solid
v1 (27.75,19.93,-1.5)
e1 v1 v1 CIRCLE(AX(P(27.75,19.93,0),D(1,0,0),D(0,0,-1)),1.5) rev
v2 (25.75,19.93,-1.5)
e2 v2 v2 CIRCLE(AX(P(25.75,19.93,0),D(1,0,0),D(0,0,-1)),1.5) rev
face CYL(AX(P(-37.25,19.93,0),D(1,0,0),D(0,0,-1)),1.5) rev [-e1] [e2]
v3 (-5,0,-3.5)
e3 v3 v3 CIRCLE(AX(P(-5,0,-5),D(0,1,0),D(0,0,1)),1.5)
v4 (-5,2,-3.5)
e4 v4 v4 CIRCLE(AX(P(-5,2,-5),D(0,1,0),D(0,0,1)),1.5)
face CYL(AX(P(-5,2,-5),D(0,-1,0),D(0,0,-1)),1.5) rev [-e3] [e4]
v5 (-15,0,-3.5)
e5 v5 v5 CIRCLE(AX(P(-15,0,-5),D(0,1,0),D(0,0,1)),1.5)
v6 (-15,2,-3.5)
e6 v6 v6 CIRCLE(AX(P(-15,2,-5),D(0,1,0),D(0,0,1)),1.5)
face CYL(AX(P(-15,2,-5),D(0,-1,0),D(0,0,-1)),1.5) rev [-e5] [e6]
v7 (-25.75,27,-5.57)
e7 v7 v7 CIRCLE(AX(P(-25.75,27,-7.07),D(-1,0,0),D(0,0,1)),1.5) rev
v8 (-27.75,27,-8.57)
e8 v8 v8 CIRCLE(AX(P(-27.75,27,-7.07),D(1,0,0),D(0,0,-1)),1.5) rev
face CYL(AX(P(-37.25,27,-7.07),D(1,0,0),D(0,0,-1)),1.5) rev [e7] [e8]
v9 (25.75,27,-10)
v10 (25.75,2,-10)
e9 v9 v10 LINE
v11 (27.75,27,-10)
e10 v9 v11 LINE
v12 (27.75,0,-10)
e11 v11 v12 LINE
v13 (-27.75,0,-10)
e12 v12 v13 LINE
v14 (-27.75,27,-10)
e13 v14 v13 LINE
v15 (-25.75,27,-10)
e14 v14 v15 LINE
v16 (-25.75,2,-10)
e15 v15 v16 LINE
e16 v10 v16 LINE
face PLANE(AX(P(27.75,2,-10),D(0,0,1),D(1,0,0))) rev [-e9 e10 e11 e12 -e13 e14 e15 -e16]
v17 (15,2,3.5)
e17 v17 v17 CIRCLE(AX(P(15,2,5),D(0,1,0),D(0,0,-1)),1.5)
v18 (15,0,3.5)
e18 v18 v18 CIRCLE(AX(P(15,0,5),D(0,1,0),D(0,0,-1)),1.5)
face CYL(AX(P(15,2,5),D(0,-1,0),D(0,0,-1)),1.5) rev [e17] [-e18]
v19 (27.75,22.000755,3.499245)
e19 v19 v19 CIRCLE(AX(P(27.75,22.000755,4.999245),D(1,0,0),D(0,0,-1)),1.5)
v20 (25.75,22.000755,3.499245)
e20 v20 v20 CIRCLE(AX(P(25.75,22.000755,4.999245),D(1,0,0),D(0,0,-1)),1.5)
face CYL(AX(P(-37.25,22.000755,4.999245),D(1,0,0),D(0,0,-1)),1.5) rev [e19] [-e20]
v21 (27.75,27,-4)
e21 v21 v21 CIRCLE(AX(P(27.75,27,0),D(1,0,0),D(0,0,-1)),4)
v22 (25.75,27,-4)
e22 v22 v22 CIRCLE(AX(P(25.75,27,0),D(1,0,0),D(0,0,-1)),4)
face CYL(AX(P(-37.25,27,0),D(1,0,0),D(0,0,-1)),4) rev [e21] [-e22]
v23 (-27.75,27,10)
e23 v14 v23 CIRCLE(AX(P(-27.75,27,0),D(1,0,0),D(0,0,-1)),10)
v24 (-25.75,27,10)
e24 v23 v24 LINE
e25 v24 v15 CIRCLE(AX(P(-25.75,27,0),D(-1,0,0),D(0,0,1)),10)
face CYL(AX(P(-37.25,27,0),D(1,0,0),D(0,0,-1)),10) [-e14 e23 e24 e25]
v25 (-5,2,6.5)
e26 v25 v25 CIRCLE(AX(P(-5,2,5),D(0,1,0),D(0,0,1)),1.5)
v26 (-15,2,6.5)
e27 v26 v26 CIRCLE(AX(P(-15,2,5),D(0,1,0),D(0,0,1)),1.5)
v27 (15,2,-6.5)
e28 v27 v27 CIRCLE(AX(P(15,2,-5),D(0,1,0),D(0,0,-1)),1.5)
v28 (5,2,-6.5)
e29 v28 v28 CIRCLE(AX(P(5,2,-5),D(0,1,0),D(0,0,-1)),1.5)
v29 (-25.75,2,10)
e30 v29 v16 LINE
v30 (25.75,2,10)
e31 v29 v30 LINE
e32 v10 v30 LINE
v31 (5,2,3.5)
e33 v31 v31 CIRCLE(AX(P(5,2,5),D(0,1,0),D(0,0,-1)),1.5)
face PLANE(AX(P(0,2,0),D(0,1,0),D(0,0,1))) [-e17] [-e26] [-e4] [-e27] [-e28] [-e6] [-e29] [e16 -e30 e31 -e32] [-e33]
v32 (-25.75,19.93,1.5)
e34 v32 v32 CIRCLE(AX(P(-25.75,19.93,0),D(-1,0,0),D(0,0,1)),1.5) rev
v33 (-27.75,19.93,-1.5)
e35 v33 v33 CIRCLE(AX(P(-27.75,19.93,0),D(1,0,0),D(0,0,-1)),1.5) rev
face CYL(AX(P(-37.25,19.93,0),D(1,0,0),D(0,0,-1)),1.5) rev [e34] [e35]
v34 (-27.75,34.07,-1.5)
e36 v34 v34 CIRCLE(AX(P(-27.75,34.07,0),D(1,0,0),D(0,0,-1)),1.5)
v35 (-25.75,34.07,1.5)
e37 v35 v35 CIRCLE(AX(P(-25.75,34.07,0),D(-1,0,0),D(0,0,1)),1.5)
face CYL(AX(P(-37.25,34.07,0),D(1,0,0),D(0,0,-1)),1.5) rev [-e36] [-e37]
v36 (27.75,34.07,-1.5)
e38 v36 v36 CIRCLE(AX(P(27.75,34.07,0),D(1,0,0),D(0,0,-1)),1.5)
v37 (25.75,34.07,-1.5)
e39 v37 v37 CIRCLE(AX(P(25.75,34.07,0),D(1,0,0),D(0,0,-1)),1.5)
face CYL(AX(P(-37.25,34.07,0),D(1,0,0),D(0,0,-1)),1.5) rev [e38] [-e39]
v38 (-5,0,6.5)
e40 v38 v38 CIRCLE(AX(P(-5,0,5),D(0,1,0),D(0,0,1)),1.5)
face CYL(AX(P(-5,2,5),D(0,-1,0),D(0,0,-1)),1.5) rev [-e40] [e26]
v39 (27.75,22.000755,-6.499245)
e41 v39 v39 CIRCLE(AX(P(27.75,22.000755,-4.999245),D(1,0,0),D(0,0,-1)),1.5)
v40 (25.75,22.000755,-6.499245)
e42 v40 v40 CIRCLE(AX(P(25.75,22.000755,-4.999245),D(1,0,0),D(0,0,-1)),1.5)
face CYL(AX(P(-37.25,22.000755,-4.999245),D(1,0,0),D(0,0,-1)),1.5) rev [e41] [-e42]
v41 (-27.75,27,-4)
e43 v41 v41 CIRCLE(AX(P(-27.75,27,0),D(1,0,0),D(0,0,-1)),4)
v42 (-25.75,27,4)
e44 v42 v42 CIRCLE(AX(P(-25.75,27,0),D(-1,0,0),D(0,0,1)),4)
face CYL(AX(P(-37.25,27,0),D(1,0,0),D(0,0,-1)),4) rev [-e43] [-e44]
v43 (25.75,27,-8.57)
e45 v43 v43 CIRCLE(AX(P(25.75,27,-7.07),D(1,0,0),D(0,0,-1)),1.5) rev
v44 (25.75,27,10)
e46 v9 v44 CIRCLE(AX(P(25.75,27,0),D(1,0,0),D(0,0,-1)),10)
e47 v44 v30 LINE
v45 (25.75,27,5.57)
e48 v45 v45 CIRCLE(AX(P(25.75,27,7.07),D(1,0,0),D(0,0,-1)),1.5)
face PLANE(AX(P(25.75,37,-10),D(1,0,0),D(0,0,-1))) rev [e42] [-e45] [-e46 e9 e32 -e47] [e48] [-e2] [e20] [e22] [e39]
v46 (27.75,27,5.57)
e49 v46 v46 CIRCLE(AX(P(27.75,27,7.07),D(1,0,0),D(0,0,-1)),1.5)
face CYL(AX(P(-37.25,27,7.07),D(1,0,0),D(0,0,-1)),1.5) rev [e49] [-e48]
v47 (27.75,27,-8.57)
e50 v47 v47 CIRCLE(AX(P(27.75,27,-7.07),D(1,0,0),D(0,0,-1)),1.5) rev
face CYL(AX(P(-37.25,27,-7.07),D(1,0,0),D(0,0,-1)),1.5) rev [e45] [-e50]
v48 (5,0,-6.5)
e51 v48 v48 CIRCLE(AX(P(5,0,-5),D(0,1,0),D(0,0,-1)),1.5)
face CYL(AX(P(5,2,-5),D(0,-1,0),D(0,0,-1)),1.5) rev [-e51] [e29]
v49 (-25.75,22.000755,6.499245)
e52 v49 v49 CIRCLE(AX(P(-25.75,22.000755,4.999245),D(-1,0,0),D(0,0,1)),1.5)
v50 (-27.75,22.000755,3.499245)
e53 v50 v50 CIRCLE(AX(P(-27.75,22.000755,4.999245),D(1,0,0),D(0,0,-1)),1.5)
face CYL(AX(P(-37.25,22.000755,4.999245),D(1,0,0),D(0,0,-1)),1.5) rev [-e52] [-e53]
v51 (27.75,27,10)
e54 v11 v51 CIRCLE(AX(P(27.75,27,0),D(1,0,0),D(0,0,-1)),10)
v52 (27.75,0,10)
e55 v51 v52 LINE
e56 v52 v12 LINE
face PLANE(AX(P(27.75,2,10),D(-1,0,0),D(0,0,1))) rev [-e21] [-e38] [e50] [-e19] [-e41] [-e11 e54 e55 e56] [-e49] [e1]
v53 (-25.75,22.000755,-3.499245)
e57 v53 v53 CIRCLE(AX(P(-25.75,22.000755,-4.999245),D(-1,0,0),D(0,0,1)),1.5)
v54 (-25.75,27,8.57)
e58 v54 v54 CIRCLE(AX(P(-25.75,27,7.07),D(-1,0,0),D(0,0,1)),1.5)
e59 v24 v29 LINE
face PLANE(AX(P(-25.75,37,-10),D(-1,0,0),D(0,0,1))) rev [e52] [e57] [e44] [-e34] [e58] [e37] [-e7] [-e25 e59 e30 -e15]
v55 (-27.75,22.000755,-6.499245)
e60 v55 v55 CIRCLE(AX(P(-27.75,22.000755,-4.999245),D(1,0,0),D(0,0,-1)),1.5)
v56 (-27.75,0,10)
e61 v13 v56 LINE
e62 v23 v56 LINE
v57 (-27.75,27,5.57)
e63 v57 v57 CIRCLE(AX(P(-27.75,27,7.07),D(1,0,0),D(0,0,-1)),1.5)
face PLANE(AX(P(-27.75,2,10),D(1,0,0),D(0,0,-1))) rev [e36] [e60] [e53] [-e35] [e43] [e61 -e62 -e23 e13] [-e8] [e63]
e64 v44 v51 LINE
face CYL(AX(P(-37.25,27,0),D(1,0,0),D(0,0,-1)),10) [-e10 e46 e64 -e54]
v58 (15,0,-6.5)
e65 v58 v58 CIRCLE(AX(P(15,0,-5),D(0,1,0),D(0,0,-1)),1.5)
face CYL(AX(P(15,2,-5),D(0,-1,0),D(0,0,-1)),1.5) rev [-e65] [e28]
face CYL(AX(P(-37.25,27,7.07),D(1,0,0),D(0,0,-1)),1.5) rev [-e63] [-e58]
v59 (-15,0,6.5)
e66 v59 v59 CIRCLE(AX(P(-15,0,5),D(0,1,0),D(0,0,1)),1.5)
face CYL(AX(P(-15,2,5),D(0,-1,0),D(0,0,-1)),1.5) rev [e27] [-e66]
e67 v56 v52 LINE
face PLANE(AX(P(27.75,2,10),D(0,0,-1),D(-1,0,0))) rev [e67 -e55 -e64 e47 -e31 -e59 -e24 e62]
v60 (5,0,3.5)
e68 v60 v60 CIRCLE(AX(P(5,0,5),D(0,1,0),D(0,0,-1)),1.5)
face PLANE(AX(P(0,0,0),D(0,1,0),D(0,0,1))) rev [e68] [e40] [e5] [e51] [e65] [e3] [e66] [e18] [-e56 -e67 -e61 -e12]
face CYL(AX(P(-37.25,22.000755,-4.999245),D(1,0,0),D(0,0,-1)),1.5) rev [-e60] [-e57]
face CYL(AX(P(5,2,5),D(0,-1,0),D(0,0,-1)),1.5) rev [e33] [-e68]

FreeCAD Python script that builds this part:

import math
import FreeCAD as App
import Part
import Sketcher
Q = App.Units.Quantity


def add_polygon(sketch, points):
    """Adds a closed chain of lines whose ends are joined by coincident constraints."""
    first, n = sketch.GeometryCount, len(points)
    for a, b in zip(points, points[1:] + points[:1]):
        sketch.addGeometry(Part.LineSegment(App.Vector(*a, 0), App.Vector(*b, 0)), False)
    for i in range(n):
        sketch.addConstraint(Sketcher.Constraint("Coincident", first + i, 2, first + (i + 1) % n, 1))

doc = App.newDocument("Part")
body = doc.addObject("PartDesign::Body", "Body")

# Sketch on XZ plane
sketch1 = body.newObject("Sketcher::SketchObject", "Sketch")
sketch1.AttachmentSupport = (doc.getObject("XZ_Plane"), [""])
sketch1.MapMode = "FlatFace"
add_polygon(sketch1, [(-27.8, -10), (-27.8, 10), (27.8, 10), (27.8, -10)])  # lines 0-3
sketch1.addGeometry(Part.Circle(App.Vector(-15, 5, 0), App.Vector(0, 0, 1), 1.5), False)  # 4
sketch1.addGeometry(Part.Circle(App.Vector(-5, 5, 0), App.Vector(0, 0, 1), 1.5), False)  # 5
sketch1.addGeometry(Part.Circle(App.Vector(5, 5, 0), App.Vector(0, 0, 1), 1.5), False)  # 6
sketch1.addGeometry(Part.Circle(App.Vector(15, 5, 0), App.Vector(0, 0, 1), 1.5), False)  # 7
sketch1.addGeometry(Part.Circle(App.Vector(-15, -5, 0), App.Vector(0, 0, 1), 1.5), False)  # 8
sketch1.addGeometry(Part.Circle(App.Vector(-5, -5, 0), App.Vector(0, 0, 1), 1.5), False)  # 9
sketch1.addGeometry(Part.Circle(App.Vector(5, -5, 0), App.Vector(0, 0, 1), 1.5), False)  # 10
sketch1.addGeometry(Part.Circle(App.Vector(15, -5, 0), App.Vector(0, 0, 1), 1.5), False)  # 11
sketch1.addConstraint(Sketcher.Constraint("Vertical", 0))
sketch1.addConstraint(Sketcher.Constraint("Horizontal", 1))
sketch1.addConstraint(Sketcher.Constraint("Vertical", 2))
sketch1.addConstraint(Sketcher.Constraint("Horizontal", 3))
sketch1.addConstraint(Sketcher.Constraint("Equal", 4, 5))
sketch1.addConstraint(Sketcher.Constraint("Equal", 5, 6))
sketch1.addConstraint(Sketcher.Constraint("Equal", 6, 7))
sketch1.addConstraint(Sketcher.Constraint("Equal", 7, 8))
sketch1.addConstraint(Sketcher.Constraint("Equal", 8, 9))
sketch1.addConstraint(Sketcher.Constraint("Equal", 9, 10))
sketch1.addConstraint(Sketcher.Constraint("Equal", 10, 11))
sketch1.addConstraint(Sketcher.Constraint("Symmetric", 7, 3, 8, 3, -1, 1))
sketch1.addConstraint(Sketcher.Constraint("Symmetric", 6, 3, 9, 3, -1, 1))
sketch1.addConstraint(Sketcher.Constraint("Symmetric", 5, 3, 10, 3, -1, 1))
sketch1.addConstraint(Sketcher.Constraint("Symmetric", 4, 3, 11, 3, -1, 1))
sketch1.addConstraint(Sketcher.Constraint("Symmetric", 0, 2, 2, 2, -1, 1))
sketch1.addConstraint(Sketcher.Constraint("Symmetric", 5, 3, 6, 3, -2))
sketch1.addConstraint(Sketcher.Constraint("Symmetric", 4, 3, 7, 3, -2))
sketch1.addConstraint(Sketcher.Constraint("Horizontal", 4, 3, 5, 3))
sketch1.addConstraint(Sketcher.Constraint("Diameter", 4, Q("3 mm")))
sketch1.addConstraint(Sketcher.Constraint("DistanceY", 0, 1, 0, 2, Q("20 mm")))
sketch1.addConstraint(Sketcher.Constraint("DistanceX", 1, 1, 1, 2, Q("55.5 mm")))
sketch1.addConstraint(Sketcher.Constraint("DistanceX", 4, 3, -1, 1, Q("15 mm")))
sketch1.addConstraint(Sketcher.Constraint("DistanceY", -1, 1, 4, 3, Q("5 mm")))
sketch1.addConstraint(Sketcher.Constraint("DistanceX", 5, 3, -1, 1, Q("5 mm")))
pad1 = body.newObject("PartDesign::Pad", "Pad")
pad1.Profile = sketch1
pad1.Length = 2
pad1.Reversed = True

# Sketch on XZ plane
sketch2 = body.newObject("Sketcher::SketchObject", "Sketch001")
sketch2.AttachmentSupport = (doc.getObject("XZ_Plane"), [""])
sketch2.MapMode = "FlatFace"
sketch2.AttachmentOffset = App.Placement(App.Vector(0, 0, -2), App.Rotation())
add_polygon(sketch2, [(-27.8, -10), (-27.8, 10), (-25.8, 10), (-25.8, -10)])  # lines 0-3
add_polygon(sketch2, [(25.8, -10), (25.8, 10), (27.8, 10), (27.8, -10)])  # lines 4-7
sketch2.addConstraint(Sketcher.Constraint("Vertical", 0))
sketch2.addConstraint(Sketcher.Constraint("Horizontal", 1))
sketch2.addConstraint(Sketcher.Constraint("Vertical", 2))
sketch2.addConstraint(Sketcher.Constraint("Horizontal", 3))
sketch2.addConstraint(Sketcher.Constraint("Vertical", 4))
sketch2.addConstraint(Sketcher.Constraint("Horizontal", 5))
sketch2.addConstraint(Sketcher.Constraint("Vertical", 6))
sketch2.addConstraint(Sketcher.Constraint("Horizontal", 7))
sketch2.addConstraint(Sketcher.Constraint("Symmetric", 2, 2, 4, 2, -1, 1))
sketch2.addConstraint(Sketcher.Constraint("Symmetric", 0, 2, 6, 2, -1, 1))
sketch2.addConstraint(Sketcher.Constraint("Horizontal", 1, 2, 4, 2))
sketch2.addConstraint(Sketcher.Constraint("DistanceX", 1, 1, 1, 2, Q("2 mm")))
sketch2.addConstraint(Sketcher.Constraint("DistanceY", 0, 1, 0, 2, Q("20 mm")))
sketch2.addConstraint(Sketcher.Constraint("DistanceX", 1, 2, 4, 2, Q("51.5 mm")))
pad2 = body.newObject("PartDesign::Pad", "Pad001")
pad2.Profile = sketch2
pad2.Length = 35
pad2.Reversed = True

# Sketch on YZ plane
sketch3 = body.newObject("Sketcher::SketchObject", "Sketch002")
sketch3.AttachmentSupport = (doc.getObject("YZ_Plane"), [""])
sketch3.MapMode = "FlatFace"
sketch3.AttachmentOffset = App.Placement(App.Vector(0, 0, 27.75), App.Rotation())
sketch3.addGeometry(Part.LineSegment(App.Vector(37, 10, 0), App.Vector(27, 10, 0)), False)
sketch3.addGeometry(Part.ArcOfCircle(Part.Circle(App.Vector(27, 0, 0), App.Vector(0, 0, 1), 10), math.radians(0), math.radians(90)), False)
sketch3.addGeometry(Part.LineSegment(App.Vector(37, 0, 0), App.Vector(37, 10, 0)), False)
sketch3.addGeometry(Part.LineSegment(App.Vector(37, -10, 0), App.Vector(37, 0, 0)), False)
sketch3.addGeometry(Part.ArcOfCircle(Part.Circle(App.Vector(27, 0, 0), App.Vector(0, 0, 1), 10), math.radians(-90), math.radians(0)), False)
sketch3.addGeometry(Part.LineSegment(App.Vector(27, -10, 0), App.Vector(37, -10, 0)), False)
sketch3.addGeometry(Part.Circle(App.Vector(27, -7.1, 0), App.Vector(0, 0, 1), 1.5), False)
sketch3.addGeometry(Part.Circle(App.Vector(27, 0, 0), App.Vector(0, 0, 1), 4), False)
sketch3.addGeometry(Part.Circle(App.Vector(34.1, 0, 0), App.Vector(0, 0, 1), 1.5), False)
sketch3.addGeometry(Part.Circle(App.Vector(22, -5, 0), App.Vector(0, 0, 1), 1.5), False)
sketch3.addGeometry(Part.Circle(App.Vector(19.9, 0, 0), App.Vector(0, 0, 1), 1.5), False)
sketch3.addGeometry(Part.Circle(App.Vector(22, 5, 0), App.Vector(0, 0, 1), 1.5), False)
sketch3.addGeometry(Part.Circle(App.Vector(27, 7.1, 0), App.Vector(0, 0, 1), 1.5), False)
sketch3.addConstraint(Sketcher.Constraint("Tangent", 0, 2, 1, 2))
sketch3.addConstraint(Sketcher.Constraint("Tangent", 1, 1, 2, 1))
sketch3.addConstraint(Sketcher.Constraint("Coincident", 2, 2, 0, 1))
sketch3.addConstraint(Sketcher.Constraint("Tangent", 3, 2, 4, 2))
sketch3.addConstraint(Sketcher.Constraint("Tangent", 4, 1, 5, 1))
sketch3.addConstraint(Sketcher.Constraint("Coincident", 5, 2, 3, 1))
sketch3.addConstraint(Sketcher.Constraint("Horizontal", 0))
sketch3.addConstraint(Sketcher.Constraint("Vertical", 2))
sketch3.addConstraint(Sketcher.Constraint("Vertical", 3))
sketch3.addConstraint(Sketcher.Constraint("Horizontal", 5))
sketch3.addConstraint(Sketcher.Constraint("Coincident", 4, 3, 1, 3))
sketch3.addConstraint(Sketcher.Constraint("Coincident", 7, 3, 1, 3))
sketch3.addConstraint(Sketcher.Constraint("Equal", 1, 4))
sketch3.addConstraint(Sketcher.Constraint("Equal", 6, 8))
sketch3.addConstraint(Sketcher.Constraint("Equal", 8, 9))
sketch3.addConstraint(Sketcher.Constraint("Equal", 9, 10))
sketch3.addConstraint(Sketcher.Constraint("Equal", 10, 11))
sketch3.addConstraint(Sketcher.Constraint("Equal", 11, 12))
sketch3.addConstraint(Sketcher.Constraint("Symmetric", 9, 3, 11, 3, -1))
sketch3.addConstraint(Sketcher.Constraint("Symmetric", 6, 3, 12, 3, -1))
sketch3.addConstraint(Sketcher.Constraint("PointOnObject", 1, 3, -1))
sketch3.addConstraint(Sketcher.Constraint("PointOnObject", 8, 3, -1))
sketch3.addConstraint(Sketcher.Constraint("PointOnObject", 10, 3, -1))
sketch3.addConstraint(Sketcher.Constraint("Vertical", 4, 3, 6, 3))
sketch3.addConstraint(Sketcher.Constraint("Diameter", 6, Q("3 mm")))
sketch3.addConstraint(Sketcher.Constraint("Diameter", 7, Q("8 mm")))
sketch3.addConstraint(Sketcher.Constraint("Radius", 1, Q("10 mm")))
sketch3.addConstraint(Sketcher.Constraint("DistanceX", -1, 1, 1, 3, Q("27 mm")))
sketch3.addConstraint(Sketcher.Constraint("DistanceY", 6, 3, -1, 1, Q("7.07 mm")))
sketch3.addConstraint(Sketcher.Constraint("DistanceX", -1, 1, 8, 3, Q("34.07 mm")))
sketch3.addConstraint(Sketcher.Constraint("DistanceX", -1, 1, 10, 3, Q("19.93 mm")))
sketch3.addConstraint(Sketcher.Constraint("DistanceY", 9, 3, 11, 3, Q("9.99849 mm")))
sketch3.addConstraint(Sketcher.Constraint("DistanceX", -1, 1, 9, 3, Q("22.000755 mm")))
pocket1 = body.newObject("PartDesign::Pocket", "Pocket")
pocket1.Profile = sketch3
pocket1.Length = 65

doc.recompute()
